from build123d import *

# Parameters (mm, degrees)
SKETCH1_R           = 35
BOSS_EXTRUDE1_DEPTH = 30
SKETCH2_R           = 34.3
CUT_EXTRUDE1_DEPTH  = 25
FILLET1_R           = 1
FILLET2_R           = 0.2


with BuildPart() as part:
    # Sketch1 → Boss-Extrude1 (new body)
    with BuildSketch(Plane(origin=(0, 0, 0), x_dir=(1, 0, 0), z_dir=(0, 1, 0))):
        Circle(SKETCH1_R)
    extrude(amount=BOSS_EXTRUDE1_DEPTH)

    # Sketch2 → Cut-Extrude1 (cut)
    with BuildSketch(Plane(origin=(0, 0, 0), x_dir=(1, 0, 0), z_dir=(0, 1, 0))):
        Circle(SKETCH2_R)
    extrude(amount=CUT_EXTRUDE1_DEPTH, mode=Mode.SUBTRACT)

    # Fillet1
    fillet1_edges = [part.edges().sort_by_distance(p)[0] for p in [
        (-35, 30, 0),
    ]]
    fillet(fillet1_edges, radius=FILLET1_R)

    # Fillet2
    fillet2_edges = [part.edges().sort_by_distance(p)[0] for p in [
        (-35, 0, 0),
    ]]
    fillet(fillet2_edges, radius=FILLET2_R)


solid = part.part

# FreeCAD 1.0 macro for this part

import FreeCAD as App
import Part
import Sketcher
from FreeCAD import Vector


def edges_at(feature, points):
    """Names of the edges that pass closest to the given points."""
    edges = feature.Shape.Edges
    near = lambda p: min(range(len(edges)), key=lambda i: edges[i].distToShape(Part.Vertex(*p))[0])
    return sorted({f"Edge{near(p) + 1}" for p in points})

doc = App.newDocument("Part")
body = doc.addObject("PartDesign::Body", "Body")

# Sketch on XZ plane
sketch1 = body.newObject("Sketcher::SketchObject", "Sketch")
sketch1.AttachmentSupport = (doc.getObject("XZ_Plane"), [""])
sketch1.MapMode = "FlatFace"
sketch1.addGeometry(Part.Circle(Vector(0, 0, 0), Vector(0, 0, 1), 35), False)
sketch1.addConstraint(Sketcher.Constraint("Coincident", 0, 3, -1, 1))
sketch1.addConstraint(Sketcher.Constraint("Diameter", 0, 70.0))
pad1 = body.newObject("PartDesign::Pad", "Pad")
pad1.Profile = sketch1
pad1.Length = 30
pad1.Reversed = True

# Sketch on XZ plane
sketch2 = body.newObject("Sketcher::SketchObject", "Sketch001")
sketch2.AttachmentSupport = (doc.getObject("XZ_Plane"), [""])
sketch2.MapMode = "FlatFace"
sketch2.addGeometry(Part.Circle(Vector(0, 0, 0), Vector(0, 0, 1), 34), False)
sketch2.addConstraint(Sketcher.Constraint("Coincident", 0, 3, -1, 1))
sketch2.addConstraint(Sketcher.Constraint("Diameter", 0, 68.6))
pocket1 = body.newObject("PartDesign::Pocket", "Pocket")
pocket1.Profile = sketch2
pocket1.Length = 25
doc.recompute()

fillet = body.newObject("PartDesign::Fillet", "Fillet")
fillet.Base = (pocket1, edges_at(pocket1, [(-35, 30, 0)]))
fillet.Radius = 1
doc.recompute()

fillet2 = body.newObject("PartDesign::Fillet", "Fillet001")
fillet2.Base = (fillet, edges_at(fillet, [(-35, 0, 0)]))
fillet2.Radius = 0.2

doc.recompute()
